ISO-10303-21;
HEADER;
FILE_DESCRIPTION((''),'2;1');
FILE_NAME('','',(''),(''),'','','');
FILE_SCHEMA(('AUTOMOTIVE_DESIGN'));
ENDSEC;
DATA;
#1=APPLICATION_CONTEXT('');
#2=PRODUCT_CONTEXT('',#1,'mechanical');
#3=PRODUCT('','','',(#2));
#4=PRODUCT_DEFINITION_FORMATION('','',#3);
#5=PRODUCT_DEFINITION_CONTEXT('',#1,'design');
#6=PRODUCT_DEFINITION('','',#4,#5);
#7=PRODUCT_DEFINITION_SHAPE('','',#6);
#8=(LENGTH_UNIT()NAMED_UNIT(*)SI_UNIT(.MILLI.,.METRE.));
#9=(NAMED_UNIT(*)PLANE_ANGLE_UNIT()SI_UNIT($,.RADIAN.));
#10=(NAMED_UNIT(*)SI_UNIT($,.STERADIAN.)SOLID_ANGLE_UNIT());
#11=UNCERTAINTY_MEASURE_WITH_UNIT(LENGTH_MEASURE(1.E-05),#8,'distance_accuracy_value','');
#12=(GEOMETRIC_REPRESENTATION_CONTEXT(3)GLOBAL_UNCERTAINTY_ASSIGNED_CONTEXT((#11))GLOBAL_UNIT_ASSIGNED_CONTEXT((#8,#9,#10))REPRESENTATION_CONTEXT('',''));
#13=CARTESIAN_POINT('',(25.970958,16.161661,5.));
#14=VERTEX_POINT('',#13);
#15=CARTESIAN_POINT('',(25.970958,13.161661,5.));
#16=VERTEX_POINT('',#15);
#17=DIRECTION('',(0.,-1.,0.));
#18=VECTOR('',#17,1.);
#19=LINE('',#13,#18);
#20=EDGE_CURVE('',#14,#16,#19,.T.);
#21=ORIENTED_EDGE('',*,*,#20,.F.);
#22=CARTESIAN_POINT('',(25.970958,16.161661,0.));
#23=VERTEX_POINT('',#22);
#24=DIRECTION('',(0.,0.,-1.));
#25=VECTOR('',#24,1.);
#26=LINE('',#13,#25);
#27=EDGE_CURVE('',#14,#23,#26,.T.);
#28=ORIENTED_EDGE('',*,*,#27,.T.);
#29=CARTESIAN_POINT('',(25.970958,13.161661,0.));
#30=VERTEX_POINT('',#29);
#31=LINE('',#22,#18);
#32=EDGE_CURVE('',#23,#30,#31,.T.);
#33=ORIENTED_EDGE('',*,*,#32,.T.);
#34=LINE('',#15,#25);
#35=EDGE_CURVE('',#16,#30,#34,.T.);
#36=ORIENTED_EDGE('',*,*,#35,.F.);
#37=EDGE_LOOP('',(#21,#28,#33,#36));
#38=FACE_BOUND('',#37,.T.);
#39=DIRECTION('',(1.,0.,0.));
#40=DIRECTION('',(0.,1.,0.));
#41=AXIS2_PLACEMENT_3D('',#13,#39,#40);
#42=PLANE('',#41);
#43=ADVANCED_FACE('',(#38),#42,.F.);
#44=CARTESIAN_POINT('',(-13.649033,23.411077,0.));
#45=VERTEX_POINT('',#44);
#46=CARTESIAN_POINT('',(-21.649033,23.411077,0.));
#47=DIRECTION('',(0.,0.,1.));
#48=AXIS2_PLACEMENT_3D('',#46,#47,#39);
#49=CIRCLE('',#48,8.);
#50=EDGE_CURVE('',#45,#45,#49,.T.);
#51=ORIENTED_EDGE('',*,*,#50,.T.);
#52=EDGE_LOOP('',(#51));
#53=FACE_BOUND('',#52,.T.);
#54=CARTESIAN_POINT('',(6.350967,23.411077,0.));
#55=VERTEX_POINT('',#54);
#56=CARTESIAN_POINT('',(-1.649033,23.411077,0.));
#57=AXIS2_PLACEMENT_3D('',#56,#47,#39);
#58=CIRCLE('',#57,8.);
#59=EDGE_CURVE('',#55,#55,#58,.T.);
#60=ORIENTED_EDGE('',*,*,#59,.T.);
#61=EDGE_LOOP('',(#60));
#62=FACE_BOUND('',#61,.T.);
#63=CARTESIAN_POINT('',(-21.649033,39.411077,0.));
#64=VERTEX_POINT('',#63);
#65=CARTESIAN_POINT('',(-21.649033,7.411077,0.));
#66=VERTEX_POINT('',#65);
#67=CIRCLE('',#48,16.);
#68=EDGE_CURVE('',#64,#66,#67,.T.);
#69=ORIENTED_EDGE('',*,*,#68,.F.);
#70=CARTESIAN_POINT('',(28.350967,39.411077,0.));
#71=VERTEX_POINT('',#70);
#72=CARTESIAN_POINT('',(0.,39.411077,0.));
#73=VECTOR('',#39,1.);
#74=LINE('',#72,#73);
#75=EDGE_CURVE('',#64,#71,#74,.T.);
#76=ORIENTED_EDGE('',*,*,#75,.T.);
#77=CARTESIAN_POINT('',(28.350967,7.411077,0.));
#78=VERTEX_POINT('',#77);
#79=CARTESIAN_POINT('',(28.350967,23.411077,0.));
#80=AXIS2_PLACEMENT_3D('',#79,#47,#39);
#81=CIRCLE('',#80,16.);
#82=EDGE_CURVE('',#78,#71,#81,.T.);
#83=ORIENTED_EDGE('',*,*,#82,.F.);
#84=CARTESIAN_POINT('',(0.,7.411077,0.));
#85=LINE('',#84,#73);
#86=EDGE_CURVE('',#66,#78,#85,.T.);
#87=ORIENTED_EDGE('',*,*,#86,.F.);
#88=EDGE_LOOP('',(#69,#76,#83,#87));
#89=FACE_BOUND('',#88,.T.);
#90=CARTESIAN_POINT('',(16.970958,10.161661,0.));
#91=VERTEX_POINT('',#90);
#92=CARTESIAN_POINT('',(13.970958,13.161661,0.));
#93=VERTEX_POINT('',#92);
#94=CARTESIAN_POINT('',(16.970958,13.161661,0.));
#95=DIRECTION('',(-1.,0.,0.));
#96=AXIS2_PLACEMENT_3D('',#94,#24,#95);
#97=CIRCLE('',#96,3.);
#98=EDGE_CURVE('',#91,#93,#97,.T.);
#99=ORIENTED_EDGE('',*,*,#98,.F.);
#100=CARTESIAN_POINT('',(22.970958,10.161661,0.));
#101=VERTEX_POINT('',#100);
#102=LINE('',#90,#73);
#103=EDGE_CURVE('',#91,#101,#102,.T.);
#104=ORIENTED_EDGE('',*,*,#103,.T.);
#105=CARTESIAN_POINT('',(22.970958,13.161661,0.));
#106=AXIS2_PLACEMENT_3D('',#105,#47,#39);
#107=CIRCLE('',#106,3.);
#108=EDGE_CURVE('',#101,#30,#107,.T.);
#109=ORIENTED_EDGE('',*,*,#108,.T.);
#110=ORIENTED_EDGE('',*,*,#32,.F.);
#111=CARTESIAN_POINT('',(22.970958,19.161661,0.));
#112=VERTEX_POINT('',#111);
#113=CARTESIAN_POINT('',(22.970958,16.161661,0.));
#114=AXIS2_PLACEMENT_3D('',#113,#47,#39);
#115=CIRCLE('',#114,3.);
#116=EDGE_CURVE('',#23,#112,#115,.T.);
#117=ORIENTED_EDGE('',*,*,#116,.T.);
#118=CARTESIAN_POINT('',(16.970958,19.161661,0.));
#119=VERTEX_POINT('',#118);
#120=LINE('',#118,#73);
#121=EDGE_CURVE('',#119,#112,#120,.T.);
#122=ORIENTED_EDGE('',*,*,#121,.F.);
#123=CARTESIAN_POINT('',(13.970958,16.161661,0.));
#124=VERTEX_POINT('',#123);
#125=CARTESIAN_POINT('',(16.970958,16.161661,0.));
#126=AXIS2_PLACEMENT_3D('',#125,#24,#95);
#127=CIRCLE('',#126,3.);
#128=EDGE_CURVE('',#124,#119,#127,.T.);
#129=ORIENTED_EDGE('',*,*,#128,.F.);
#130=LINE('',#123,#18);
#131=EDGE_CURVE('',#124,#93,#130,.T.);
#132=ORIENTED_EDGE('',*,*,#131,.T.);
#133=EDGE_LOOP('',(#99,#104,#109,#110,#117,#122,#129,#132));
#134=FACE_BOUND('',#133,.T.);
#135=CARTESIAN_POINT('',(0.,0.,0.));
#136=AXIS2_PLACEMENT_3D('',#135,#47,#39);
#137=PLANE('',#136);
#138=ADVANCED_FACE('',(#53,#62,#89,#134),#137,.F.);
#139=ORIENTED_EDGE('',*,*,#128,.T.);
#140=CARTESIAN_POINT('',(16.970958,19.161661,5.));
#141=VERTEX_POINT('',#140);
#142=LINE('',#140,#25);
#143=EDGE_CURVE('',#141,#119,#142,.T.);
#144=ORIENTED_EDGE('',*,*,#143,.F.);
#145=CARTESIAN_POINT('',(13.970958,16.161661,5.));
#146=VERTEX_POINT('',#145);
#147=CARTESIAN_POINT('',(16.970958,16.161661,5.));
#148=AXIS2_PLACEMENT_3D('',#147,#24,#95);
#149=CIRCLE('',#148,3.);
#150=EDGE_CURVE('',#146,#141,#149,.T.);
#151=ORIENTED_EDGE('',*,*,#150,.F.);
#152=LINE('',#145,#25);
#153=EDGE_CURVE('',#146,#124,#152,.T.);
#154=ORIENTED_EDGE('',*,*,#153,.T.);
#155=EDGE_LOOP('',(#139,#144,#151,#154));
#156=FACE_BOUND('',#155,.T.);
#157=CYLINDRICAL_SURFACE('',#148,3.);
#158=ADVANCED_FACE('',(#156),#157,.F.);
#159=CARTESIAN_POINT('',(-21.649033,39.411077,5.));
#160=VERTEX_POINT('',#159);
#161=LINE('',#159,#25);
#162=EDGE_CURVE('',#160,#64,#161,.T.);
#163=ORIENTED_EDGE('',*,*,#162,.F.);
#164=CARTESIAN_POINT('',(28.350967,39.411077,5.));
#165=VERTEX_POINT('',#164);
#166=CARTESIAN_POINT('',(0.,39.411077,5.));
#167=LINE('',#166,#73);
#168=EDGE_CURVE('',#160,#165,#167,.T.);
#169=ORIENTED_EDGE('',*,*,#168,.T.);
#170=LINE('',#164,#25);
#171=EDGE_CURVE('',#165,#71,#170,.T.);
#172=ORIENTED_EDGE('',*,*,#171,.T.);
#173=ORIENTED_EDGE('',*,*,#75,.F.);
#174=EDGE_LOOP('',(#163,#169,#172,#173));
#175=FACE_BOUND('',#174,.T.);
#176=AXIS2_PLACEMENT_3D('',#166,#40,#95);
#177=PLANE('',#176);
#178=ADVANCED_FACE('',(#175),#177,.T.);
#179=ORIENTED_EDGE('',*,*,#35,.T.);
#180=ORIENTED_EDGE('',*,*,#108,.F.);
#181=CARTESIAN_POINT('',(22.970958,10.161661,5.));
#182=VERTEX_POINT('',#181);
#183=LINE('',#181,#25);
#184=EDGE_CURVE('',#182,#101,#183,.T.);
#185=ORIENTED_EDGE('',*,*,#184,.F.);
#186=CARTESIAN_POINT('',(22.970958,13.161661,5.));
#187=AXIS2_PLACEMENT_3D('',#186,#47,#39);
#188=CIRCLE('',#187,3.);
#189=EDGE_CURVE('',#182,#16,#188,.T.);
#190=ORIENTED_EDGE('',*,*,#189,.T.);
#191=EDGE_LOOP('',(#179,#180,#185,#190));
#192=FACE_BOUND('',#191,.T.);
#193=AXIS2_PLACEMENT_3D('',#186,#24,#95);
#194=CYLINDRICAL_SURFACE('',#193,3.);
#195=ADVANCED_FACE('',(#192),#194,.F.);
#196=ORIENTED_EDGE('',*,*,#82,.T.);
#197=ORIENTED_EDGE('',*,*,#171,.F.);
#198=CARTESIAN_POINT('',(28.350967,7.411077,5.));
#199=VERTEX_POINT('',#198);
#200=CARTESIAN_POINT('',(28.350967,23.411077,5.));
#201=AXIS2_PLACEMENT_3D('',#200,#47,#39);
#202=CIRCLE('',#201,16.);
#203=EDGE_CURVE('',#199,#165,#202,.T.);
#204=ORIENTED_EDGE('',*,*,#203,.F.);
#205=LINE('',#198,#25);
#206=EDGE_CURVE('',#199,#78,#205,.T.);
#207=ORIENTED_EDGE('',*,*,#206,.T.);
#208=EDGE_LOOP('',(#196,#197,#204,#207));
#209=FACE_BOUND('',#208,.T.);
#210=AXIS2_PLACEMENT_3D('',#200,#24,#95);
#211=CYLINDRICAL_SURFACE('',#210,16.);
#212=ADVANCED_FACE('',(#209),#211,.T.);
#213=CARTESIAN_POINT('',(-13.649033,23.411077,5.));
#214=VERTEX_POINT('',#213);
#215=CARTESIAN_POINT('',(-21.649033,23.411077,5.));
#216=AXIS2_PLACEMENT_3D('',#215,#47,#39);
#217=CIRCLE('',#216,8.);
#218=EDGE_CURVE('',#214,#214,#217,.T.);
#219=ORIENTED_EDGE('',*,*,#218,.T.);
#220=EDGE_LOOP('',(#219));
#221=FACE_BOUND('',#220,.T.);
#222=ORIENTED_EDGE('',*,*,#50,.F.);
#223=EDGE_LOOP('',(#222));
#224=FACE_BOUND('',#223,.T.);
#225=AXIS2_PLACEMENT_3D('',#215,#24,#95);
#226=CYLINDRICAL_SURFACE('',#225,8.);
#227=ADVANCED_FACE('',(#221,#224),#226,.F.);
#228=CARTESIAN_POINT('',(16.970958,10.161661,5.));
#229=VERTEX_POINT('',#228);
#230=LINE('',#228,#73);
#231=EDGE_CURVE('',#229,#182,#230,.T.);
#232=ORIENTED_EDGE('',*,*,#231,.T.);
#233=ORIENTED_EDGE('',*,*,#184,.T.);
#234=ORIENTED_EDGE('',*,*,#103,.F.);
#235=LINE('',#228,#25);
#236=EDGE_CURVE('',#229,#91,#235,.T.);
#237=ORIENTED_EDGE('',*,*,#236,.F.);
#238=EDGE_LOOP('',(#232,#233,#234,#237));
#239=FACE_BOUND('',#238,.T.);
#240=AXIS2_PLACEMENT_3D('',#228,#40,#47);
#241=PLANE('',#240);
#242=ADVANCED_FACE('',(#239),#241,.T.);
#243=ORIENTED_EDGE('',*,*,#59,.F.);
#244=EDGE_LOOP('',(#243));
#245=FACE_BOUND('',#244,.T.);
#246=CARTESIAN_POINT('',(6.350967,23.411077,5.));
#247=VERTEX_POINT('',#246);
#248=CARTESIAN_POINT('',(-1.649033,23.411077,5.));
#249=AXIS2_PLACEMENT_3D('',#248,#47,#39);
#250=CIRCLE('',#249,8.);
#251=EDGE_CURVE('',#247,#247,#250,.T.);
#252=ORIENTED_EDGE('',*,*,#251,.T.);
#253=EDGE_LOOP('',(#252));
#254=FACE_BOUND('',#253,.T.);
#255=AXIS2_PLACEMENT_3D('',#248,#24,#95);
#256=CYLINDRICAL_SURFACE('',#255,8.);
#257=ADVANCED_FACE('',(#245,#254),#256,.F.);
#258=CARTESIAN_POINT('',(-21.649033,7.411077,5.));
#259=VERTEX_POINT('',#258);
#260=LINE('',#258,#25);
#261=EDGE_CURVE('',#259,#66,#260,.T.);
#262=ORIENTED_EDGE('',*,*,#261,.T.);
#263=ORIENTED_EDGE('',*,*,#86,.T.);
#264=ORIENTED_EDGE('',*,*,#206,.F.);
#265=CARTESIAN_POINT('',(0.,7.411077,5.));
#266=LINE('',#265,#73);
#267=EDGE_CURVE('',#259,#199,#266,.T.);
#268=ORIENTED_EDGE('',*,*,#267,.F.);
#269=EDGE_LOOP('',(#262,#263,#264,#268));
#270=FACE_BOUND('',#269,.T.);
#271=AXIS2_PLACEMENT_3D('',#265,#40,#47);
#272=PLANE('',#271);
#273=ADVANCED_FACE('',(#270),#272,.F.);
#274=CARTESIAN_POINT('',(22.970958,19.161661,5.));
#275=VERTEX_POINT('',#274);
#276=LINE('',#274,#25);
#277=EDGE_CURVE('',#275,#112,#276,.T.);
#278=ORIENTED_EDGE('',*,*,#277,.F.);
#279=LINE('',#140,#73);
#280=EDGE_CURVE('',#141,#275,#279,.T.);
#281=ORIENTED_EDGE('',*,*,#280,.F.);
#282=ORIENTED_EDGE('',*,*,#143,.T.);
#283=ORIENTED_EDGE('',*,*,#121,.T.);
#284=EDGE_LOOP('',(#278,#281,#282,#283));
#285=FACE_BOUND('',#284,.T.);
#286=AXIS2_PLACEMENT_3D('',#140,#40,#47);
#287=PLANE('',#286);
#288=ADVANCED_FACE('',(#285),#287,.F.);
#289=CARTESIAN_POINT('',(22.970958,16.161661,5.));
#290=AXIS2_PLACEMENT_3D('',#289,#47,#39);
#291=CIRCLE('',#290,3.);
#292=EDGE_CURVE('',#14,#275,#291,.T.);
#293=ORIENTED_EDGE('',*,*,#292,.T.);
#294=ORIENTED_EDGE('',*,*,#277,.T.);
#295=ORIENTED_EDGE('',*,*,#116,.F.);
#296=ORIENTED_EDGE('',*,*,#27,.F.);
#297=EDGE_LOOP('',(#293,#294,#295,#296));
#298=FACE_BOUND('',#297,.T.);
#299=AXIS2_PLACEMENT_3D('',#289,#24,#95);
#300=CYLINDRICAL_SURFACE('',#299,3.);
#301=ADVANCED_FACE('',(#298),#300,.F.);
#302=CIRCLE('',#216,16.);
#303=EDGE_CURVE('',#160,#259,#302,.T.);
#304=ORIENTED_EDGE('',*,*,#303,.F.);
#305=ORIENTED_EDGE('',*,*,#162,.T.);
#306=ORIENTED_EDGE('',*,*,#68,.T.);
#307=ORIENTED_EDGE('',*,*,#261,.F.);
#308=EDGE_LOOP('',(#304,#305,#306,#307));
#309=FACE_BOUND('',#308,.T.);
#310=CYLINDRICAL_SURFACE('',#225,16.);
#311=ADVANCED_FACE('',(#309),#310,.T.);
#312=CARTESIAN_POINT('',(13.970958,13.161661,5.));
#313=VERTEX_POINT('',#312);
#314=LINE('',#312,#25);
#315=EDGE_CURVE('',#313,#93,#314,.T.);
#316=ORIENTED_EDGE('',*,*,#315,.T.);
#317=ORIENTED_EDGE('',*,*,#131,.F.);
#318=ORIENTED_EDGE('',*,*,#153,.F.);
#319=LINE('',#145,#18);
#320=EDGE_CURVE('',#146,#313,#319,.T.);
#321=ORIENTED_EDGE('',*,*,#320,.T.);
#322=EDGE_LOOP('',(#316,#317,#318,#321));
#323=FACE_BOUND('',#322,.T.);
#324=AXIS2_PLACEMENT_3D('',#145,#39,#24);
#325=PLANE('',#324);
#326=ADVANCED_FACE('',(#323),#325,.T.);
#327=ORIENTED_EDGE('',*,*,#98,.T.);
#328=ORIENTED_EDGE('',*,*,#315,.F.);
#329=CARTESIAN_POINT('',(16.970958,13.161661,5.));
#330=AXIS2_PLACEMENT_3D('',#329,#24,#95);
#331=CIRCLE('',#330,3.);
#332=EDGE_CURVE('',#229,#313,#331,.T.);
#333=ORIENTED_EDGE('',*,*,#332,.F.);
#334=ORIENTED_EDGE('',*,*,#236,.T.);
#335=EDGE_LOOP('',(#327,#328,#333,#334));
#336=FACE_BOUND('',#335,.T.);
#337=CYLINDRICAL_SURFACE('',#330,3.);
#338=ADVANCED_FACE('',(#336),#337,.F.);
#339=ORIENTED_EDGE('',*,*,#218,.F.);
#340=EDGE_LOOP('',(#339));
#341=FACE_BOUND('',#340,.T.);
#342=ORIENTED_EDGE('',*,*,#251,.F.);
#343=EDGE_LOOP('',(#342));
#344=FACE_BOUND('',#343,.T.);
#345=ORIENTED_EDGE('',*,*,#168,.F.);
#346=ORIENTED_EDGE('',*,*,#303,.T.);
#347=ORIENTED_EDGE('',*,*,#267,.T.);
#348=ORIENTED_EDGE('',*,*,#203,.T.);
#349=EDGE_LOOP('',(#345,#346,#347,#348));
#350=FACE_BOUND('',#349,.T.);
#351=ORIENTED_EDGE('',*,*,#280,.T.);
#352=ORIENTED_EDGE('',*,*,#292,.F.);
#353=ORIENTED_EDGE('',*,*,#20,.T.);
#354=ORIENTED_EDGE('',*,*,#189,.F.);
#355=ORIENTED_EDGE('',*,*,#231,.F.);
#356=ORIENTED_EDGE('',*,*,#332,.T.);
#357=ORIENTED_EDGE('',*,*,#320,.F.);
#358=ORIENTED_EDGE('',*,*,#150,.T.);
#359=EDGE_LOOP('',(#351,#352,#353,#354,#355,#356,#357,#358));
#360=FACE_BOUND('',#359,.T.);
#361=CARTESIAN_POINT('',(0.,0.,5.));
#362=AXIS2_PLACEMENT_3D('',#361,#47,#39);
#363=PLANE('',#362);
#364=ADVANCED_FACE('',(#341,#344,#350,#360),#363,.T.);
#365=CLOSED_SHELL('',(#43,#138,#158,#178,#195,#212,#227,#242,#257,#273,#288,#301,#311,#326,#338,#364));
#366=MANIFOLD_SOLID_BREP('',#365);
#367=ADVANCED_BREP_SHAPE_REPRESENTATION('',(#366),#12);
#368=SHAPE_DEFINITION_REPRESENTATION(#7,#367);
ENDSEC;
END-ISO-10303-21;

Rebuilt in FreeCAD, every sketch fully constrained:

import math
import FreeCAD as App
import Part
import Sketcher
from FreeCAD import Vector
Q = App.Units.Quantity

doc = App.newDocument("Part")
body = doc.addObject("PartDesign::Body", "Body")

# Sketch on XY plane
sketch1 = body.newObject("Sketcher::SketchObject", "Sketch")
sketch1.AttachmentSupport = (doc.getObject("XY_Plane"), [""])
sketch1.MapMode = "FlatFace"
sketch1.addGeometry(Part.ArcOfCircle(Part.Circle(Vector(-21.6, 23.4, 0), Vector(0, 0, 1), 16), math.radians(90), math.radians(270)), False)
sketch1.addGeometry(Part.LineSegment(Vector(-21.6, 7.4, 0), Vector(28.4, 7.4, 0)), False)
sketch1.addGeometry(Part.ArcOfCircle(Part.Circle(Vector(28.4, 23.4, 0), Vector(0, 0, 1), 16), math.radians(-90), math.radians(90)), False)
sketch1.addGeometry(Part.LineSegment(Vector(28.4, 39.4, 0), Vector(-21.6, 39.4, 0)), False)
sketch1.addGeometry(Part.LineSegment(Vector(23, 10.2, 0), Vector(17, 10.2, 0)), False)
sketch1.addGeometry(Part.ArcOfCircle(Part.Circle(Vector(17, 13.2, 0), Vector(0, 0, 1), 3), math.radians(180), math.radians(270)), False)
sketch1.addGeometry(Part.LineSegment(Vector(14, 13.2, 0), Vector(14, 16.2, 0)), False)
sketch1.addGeometry(Part.ArcOfCircle(Part.Circle(Vector(17, 16.2, 0), Vector(0, 0, 1), 3), math.radians(90), math.radians(180)), False)
sketch1.addGeometry(Part.LineSegment(Vector(17, 19.2, 0), Vector(23, 19.2, 0)), False)
sketch1.addGeometry(Part.ArcOfCircle(Part.Circle(Vector(23, 16.2, 0), Vector(0, 0, 1), 3), math.radians(0), math.radians(90)), False)
sketch1.addGeometry(Part.LineSegment(Vector(26, 16.2, 0), Vector(26, 13.2, 0)), False)
sketch1.addGeometry(Part.ArcOfCircle(Part.Circle(Vector(23, 13.2, 0), Vector(0, 0, 1), 3), math.radians(-90), math.radians(0)), False)
sketch1.addGeometry(Part.Circle(Vector(-21.6, 23.4, 0), Vector(0, 0, 1), 8), False)
sketch1.addGeometry(Part.Circle(Vector(-1.6, 23.4, 0), Vector(0, 0, 1), 8), False)
sketch1.addConstraint(Sketcher.Constraint("Tangent", 0, 2, 1, 1))
sketch1.addConstraint(Sketcher.Constraint("Tangent", 1, 2, 2, 1))
sketch1.addConstraint(Sketcher.Constraint("Tangent", 2, 2, 3, 1))
sketch1.addConstraint(Sketcher.Constraint("Tangent", 3, 2, 0, 1))
sketch1.addConstraint(Sketcher.Constraint("Tangent", 4, 2, 5, 2))
sketch1.addConstraint(Sketcher.Constraint("Tangent", 5, 1, 6, 1))
sketch1.addConstraint(Sketcher.Constraint("Tangent", 6, 2, 7, 2))
sketch1.addConstraint(Sketcher.Constraint("Tangent", 7, 1, 8, 1))
sketch1.addConstraint(Sketcher.Constraint("Tangent", 8, 2, 9, 2))
sketch1.addConstraint(Sketcher.Constraint("Tangent", 9, 1, 10, 1))
sketch1.addConstraint(Sketcher.Constraint("Tangent", 10, 2, 11, 2))
sketch1.addConstraint(Sketcher.Constraint("Tangent", 11, 1, 4, 1))
sketch1.addConstraint(Sketcher.Constraint("Horizontal", 1))
sketch1.addConstraint(Sketcher.Constraint("Horizontal", 3))
sketch1.addConstraint(Sketcher.Constraint("Horizontal", 4))
sketch1.addConstraint(Sketcher.Constraint("Vertical", 6))
sketch1.addConstraint(Sketcher.Constraint("Horizontal", 8))
sketch1.addConstraint(Sketcher.Constraint("Vertical", 10))
sketch1.addConstraint(Sketcher.Constraint("Coincident", 12, 3, 0, 3))
sketch1.addConstraint(Sketcher.Constraint("Equal", 5, 7))
sketch1.addConstraint(Sketcher.Constraint("Equal", 7, 9))
sketch1.addConstraint(Sketcher.Constraint("Equal", 9, 11))
sketch1.addConstraint(Sketcher.Constraint("Equal", 12, 13))
sketch1.addConstraint(Sketcher.Constraint("Horizontal", 12, 3, 13, 3))
sketch1.addConstraint(Sketcher.Constraint("Diameter", 12, Q("16 mm")))
sketch1.addConstraint(Sketcher.Constraint("Radius", 0, Q("16 mm")))
sketch1.addConstraint(Sketcher.Constraint("Radius", 5, Q("3 mm")))
sketch1.addConstraint(Sketcher.Constraint("DistanceX", 1, 1, 1, 2, Q("50 mm")))
sketch1.addConstraint(Sketcher.Constraint("DistanceX", 4, 2, 4, 1, Q("6 mm")))
sketch1.addConstraint(Sketcher.Constraint("DistanceY", 6, 1, 6, 2, Q("3 mm")))
sketch1.addConstraint(Sketcher.Constraint("DistanceX", 0, 3, 13, 3, Q("20 mm")))
sketch1.addConstraint(Sketcher.Constraint("DistanceY", -1, 1, 5, 3, Q("13.161661 mm")))
sketch1.addConstraint(Sketcher.Constraint("DistanceX", 5, 3, 2, 3, Q("11.380009 mm")))
sketch1.addConstraint(Sketcher.Constraint("DistanceX", 0, 3, -1, 1, Q("21.649033 mm")))
sketch1.addConstraint(Sketcher.Constraint("DistanceY", -1, 1, 0, 3, Q("23.411077 mm")))
pad1 = body.newObject("PartDesign::Pad", "Pad")
pad1.Profile = sketch1
pad1.Length = 5

doc.recompute()
